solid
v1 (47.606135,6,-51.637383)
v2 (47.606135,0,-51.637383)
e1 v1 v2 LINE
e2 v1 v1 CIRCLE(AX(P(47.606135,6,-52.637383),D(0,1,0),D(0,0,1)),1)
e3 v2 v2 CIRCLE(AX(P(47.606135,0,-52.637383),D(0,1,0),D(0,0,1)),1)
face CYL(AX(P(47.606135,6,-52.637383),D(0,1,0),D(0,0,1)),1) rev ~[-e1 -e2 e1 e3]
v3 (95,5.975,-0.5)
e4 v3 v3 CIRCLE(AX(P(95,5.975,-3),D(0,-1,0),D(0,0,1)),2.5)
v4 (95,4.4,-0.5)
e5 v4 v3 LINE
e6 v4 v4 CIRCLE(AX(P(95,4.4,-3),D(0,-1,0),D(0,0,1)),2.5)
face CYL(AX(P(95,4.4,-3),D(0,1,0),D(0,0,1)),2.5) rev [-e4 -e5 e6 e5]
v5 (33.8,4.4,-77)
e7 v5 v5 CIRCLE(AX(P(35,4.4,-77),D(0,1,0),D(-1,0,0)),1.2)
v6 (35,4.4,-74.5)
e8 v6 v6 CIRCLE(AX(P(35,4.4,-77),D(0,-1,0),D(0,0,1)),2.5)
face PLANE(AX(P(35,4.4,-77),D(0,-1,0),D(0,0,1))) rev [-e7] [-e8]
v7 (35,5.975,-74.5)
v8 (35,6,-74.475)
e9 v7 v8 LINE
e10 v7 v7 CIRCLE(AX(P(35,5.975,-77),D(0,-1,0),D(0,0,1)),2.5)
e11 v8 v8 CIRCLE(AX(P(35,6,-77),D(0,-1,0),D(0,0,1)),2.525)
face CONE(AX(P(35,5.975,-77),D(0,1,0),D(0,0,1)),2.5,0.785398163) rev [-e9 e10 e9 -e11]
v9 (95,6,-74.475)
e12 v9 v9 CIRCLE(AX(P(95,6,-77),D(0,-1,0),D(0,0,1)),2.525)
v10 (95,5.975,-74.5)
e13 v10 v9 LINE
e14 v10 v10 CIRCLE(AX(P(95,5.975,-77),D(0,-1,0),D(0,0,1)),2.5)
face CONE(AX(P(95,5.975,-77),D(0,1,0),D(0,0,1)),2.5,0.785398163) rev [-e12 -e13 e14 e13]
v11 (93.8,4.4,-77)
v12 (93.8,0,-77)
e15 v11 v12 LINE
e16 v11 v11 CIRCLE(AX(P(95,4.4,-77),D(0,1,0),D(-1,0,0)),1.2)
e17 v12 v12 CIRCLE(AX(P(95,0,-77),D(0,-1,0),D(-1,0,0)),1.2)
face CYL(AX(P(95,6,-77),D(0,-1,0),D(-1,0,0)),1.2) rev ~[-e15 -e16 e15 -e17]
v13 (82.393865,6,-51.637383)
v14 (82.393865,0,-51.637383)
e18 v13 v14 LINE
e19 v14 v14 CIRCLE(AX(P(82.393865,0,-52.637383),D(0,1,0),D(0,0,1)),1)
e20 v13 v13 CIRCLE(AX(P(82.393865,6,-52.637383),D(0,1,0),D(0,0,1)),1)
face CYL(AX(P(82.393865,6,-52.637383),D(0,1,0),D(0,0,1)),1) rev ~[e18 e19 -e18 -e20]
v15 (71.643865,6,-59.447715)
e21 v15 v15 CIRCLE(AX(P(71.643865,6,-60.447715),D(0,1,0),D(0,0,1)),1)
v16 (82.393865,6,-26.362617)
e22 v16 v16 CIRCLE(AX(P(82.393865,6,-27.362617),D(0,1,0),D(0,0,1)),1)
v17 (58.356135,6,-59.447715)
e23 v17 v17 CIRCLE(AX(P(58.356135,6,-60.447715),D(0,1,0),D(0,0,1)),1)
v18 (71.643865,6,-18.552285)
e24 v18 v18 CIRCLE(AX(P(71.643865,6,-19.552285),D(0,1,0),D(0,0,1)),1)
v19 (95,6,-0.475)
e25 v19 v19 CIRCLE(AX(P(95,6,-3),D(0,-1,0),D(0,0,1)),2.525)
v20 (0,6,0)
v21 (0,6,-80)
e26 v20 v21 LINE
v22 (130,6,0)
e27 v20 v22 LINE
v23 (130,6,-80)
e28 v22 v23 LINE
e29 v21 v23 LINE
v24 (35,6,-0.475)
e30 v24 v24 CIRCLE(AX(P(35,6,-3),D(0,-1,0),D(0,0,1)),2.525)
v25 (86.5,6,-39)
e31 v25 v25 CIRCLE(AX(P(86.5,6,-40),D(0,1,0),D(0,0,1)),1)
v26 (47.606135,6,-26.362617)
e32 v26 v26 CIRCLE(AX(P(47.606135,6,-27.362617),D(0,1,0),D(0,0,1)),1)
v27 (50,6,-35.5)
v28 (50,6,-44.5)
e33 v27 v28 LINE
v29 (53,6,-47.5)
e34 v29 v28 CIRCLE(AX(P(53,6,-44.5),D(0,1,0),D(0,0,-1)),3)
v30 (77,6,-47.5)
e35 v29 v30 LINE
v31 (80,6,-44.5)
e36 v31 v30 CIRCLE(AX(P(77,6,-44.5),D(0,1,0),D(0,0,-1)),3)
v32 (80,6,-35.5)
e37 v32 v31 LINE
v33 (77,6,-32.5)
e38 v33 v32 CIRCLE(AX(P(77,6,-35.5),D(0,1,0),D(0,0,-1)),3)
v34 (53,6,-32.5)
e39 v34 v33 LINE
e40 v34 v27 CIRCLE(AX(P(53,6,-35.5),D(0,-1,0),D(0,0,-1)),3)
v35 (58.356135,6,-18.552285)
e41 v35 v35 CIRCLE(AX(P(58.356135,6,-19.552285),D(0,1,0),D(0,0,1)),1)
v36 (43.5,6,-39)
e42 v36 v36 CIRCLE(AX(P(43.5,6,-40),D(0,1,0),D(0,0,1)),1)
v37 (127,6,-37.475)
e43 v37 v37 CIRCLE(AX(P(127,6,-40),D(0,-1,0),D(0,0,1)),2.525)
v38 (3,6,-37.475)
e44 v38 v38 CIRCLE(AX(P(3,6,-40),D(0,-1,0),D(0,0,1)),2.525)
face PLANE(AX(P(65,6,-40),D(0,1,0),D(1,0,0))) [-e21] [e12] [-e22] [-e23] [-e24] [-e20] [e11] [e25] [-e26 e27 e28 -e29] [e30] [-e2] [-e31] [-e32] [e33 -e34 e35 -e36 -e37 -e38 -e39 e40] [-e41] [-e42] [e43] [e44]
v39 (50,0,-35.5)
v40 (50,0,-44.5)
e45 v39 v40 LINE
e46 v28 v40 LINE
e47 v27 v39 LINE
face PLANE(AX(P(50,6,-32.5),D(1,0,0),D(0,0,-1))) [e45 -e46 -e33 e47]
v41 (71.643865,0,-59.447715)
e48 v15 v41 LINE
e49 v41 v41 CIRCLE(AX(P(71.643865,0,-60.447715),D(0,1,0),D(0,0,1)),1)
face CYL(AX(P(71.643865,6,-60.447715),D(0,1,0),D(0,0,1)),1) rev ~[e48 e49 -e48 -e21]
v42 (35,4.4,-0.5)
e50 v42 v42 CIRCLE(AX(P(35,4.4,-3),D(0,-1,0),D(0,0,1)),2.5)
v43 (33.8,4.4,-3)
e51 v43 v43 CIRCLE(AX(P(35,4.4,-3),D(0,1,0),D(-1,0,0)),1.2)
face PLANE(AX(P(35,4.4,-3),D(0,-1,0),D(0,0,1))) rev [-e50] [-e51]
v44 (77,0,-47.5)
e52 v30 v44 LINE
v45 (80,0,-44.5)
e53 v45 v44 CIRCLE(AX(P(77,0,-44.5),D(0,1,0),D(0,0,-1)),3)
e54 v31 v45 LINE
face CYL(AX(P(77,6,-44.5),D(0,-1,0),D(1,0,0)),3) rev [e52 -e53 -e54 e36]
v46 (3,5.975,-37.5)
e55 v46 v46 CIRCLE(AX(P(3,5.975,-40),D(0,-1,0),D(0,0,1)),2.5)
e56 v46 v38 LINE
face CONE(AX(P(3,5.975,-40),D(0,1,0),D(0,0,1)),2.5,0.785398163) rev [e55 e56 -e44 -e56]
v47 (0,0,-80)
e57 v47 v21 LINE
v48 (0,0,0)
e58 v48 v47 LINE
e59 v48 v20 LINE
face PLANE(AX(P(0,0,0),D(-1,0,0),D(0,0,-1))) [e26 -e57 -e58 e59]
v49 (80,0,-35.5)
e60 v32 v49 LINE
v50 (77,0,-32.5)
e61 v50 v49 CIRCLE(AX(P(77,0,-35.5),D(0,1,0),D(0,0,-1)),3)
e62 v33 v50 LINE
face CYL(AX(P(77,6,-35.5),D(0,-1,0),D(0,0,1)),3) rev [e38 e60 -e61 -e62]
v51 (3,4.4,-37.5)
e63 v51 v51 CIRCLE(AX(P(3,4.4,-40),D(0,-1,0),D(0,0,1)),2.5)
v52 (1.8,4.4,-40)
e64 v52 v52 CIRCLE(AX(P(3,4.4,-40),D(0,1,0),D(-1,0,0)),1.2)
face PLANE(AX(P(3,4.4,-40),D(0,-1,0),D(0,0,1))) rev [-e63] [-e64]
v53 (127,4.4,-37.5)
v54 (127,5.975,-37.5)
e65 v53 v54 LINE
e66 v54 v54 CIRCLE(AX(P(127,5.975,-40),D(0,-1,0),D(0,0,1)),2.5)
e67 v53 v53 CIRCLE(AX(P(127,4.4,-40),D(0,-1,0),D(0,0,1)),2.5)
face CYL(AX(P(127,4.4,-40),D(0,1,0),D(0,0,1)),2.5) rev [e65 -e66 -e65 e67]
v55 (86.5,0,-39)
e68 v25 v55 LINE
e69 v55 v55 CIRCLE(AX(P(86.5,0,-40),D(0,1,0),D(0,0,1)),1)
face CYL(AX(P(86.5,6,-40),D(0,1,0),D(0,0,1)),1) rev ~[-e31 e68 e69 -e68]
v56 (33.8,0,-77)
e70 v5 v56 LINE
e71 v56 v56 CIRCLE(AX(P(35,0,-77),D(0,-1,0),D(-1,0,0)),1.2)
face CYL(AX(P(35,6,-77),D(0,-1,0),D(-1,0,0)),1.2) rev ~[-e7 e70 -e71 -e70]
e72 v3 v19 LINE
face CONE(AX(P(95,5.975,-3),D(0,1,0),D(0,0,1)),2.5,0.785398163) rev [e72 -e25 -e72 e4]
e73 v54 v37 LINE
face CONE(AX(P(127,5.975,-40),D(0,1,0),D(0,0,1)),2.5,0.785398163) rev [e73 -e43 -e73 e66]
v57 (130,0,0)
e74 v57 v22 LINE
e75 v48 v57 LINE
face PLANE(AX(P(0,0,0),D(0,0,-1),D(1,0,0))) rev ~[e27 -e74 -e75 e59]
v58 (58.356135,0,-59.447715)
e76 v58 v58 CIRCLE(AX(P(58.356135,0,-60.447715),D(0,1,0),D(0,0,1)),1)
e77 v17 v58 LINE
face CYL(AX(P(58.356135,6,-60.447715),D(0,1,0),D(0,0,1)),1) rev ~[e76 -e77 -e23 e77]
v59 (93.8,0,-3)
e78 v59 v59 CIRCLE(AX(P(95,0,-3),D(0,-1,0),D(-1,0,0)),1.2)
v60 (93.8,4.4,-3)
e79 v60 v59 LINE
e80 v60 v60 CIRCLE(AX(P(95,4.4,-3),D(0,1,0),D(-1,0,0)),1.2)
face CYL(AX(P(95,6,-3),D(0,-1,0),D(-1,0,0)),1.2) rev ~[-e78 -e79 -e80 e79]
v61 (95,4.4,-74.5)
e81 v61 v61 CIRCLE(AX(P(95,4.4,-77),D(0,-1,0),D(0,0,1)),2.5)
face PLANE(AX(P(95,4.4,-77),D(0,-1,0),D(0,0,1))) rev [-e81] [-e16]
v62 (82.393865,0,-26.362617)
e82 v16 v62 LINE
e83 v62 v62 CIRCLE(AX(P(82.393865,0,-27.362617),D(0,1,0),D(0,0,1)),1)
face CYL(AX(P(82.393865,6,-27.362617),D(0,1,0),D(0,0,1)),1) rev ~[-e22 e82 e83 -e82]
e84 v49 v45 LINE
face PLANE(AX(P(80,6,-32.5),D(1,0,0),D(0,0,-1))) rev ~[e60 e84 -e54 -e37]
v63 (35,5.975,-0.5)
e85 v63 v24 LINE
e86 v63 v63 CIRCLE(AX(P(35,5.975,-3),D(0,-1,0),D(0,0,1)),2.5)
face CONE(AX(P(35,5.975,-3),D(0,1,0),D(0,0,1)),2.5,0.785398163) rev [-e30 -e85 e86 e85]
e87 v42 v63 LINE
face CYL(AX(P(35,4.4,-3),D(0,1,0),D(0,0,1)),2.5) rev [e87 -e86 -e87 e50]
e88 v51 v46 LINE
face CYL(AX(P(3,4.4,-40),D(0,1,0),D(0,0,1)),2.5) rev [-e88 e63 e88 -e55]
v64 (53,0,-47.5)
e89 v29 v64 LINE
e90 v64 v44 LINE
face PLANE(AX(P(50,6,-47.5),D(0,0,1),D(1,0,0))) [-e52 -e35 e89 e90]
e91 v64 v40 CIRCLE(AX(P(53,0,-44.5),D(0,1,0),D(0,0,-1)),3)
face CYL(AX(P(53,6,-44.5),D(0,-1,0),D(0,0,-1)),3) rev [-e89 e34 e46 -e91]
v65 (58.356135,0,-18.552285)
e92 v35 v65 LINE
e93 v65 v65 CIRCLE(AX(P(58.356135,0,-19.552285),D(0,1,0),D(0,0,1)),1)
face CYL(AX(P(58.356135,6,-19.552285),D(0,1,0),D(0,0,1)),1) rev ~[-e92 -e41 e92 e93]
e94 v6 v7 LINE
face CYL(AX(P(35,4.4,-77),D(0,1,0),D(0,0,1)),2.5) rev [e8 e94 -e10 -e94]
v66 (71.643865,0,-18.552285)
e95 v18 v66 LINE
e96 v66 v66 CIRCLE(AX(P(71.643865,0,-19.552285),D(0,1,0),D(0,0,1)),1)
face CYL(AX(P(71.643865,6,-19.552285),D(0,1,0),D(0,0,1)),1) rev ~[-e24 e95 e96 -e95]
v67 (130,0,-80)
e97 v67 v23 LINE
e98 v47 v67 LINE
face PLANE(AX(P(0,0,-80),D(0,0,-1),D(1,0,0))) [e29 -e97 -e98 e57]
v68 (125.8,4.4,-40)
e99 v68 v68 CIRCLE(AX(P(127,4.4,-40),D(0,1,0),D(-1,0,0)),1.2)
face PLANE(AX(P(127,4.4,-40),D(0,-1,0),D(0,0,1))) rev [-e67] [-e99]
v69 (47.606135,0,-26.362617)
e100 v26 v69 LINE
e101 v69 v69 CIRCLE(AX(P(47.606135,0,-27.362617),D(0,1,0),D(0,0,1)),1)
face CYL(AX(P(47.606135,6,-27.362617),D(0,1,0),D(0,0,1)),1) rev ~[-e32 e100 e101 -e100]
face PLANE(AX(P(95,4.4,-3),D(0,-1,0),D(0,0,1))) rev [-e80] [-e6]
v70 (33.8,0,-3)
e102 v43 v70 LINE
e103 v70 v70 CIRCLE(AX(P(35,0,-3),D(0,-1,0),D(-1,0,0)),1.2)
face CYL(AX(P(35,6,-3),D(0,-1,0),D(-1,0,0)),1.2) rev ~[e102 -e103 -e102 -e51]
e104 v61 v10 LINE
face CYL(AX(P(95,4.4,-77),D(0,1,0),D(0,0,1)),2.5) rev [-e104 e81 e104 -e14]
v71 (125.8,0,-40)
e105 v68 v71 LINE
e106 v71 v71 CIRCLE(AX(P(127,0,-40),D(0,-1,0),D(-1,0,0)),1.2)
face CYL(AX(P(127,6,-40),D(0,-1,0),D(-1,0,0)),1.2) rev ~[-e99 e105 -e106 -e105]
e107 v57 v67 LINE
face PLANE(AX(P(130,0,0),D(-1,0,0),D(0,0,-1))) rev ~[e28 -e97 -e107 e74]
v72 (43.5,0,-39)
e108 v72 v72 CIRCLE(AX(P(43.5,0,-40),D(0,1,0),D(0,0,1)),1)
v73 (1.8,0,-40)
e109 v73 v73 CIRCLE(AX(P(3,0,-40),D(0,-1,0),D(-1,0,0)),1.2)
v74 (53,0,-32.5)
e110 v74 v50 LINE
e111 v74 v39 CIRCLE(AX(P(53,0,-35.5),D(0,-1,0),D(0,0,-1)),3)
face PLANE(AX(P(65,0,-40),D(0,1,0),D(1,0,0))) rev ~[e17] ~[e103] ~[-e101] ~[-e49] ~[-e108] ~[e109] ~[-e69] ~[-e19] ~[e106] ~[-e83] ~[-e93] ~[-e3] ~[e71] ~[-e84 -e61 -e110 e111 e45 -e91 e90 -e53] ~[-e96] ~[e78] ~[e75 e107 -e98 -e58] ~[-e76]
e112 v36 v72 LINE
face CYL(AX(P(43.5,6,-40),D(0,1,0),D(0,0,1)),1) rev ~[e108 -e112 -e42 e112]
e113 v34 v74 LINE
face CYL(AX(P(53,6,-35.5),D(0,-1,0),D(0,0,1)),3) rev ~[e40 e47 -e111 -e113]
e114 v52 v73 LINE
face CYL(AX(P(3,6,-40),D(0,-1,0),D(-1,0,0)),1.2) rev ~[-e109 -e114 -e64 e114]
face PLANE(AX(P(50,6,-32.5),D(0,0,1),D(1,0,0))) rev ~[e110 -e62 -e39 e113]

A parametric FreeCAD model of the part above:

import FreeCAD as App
import Part
import Sketcher

V = App.Vector
Q = App.Units.Quantity


def edges_at(feature, points):
    """Names of the edges that pass closest to the given points."""
    edges = feature.Shape.Edges
    near = lambda p: min(range(len(edges)), key=lambda i: edges[i].distToShape(Part.Vertex(*p))[0])
    return sorted({f"Edge{near(p) + 1}" for p in points})


def add_polygon(sketch, points):
    """Adds a closed chain of lines whose ends are joined by coincident constraints."""
    first, n = sketch.GeometryCount, len(points)
    for a, b in zip(points, points[1:] + points[:1]):
        sketch.addGeometry(Part.LineSegment(App.Vector(*a, 0), App.Vector(*b, 0)), False)
    for i in range(n):
        sketch.addConstraint(Sketcher.Constraint("Coincident", first + i, 2, first + (i + 1) % n, 1))

doc = App.newDocument("Part")
body = doc.addObject("PartDesign::Body", "Body")

sketch1 = body.newObject("Sketcher::SketchObject", "Sketch")
sketch1.AttachmentSupport = (doc.getObject("XZ_Plane"), [""])
sketch1.MapMode = "FlatFace"
add_polygon(sketch1, [(0, -80), (0, 0), (130, 0), (130, -80)])
sketch1.addConstraint(Sketcher.Constraint("Vertical", 0))
sketch1.addConstraint(Sketcher.Constraint("Horizontal", 1))
sketch1.addConstraint(Sketcher.Constraint("Vertical", 2))
sketch1.addConstraint(Sketcher.Constraint("Horizontal", 3))
sketch1.addConstraint(Sketcher.Constraint("Coincident", 0, 2, -1, 1))
sketch1.addConstraint(Sketcher.Constraint("DistanceX", 1, 1, 1, 2, 130.0))
sketch1.addConstraint(Sketcher.Constraint("DistanceY", 0, 1, 0, 2, 80.0))
pad1 = body.newObject("PartDesign::Pad", "Pad")
pad1.Profile = sketch1
pad1.Length = 6
pad1.Reversed = True

sketch2 = body.newObject("Sketcher::SketchObject", "Sketch001")
sketch2.AttachmentSupport = (doc.getObject("XZ_Plane"), [""])
sketch2.MapMode = "FlatFace"
sketch2.AttachmentOffset = App.Placement(V(0, 0, -6), App.Rotation())
sketch2.addGeometry(Part.Circle(V(35, -77, 0), V(0, 0, 1), 1.2), False)
sketch2.addGeometry(Part.Circle(V(95, -77, 0), V(0, 0, 1), 1.2), False)
sketch2.addGeometry(Part.Circle(V(127, -40, 0), V(0, 0, 1), 1.2), False)
sketch2.addGeometry(Part.Circle(V(95, -3, 0), V(0, 0, 1), 1.2), False)
sketch2.addGeometry(Part.Circle(V(35, -3, 0), V(0, 0, 1), 1.2), False)
sketch2.addGeometry(Part.Circle(V(3, -40, 0), V(0, 0, 1), 1.2), False)
sketch2.addGeometry(Part.Circle(V(133.1, -32.8, 0), V(0, 0, 1), 1.2), False)
sketch2.addConstraint(Sketcher.Constraint("Equal", 0, 1))
sketch2.addConstraint(Sketcher.Constraint("Equal", 1, 2))
sketch2.addConstraint(Sketcher.Constraint("Equal", 2, 3))
sketch2.addConstraint(Sketcher.Constraint("Equal", 3, 4))
sketch2.addConstraint(Sketcher.Constraint("Equal", 4, 5))
sketch2.addConstraint(Sketcher.Constraint("Equal", 5, 6))
sketch2.addConstraint(Sketcher.Constraint("Horizontal", 0, 3, 1, 3))
sketch2.addConstraint(Sketcher.Constraint("Horizontal", 3, 3, 4, 3))
sketch2.addConstraint(Sketcher.Constraint("Horizontal", 2, 3, 5, 3))
sketch2.addConstraint(Sketcher.Constraint("Vertical", 1, 3, 3, 3))
sketch2.addConstraint(Sketcher.Constraint("Vertical", 0, 3, 4, 3))
sketch2.addConstraint(Sketcher.Constraint("Diameter", 0, 2.4))
sketch2.addConstraint(Sketcher.Constraint("DistanceX", -1, 1, 0, 3, 35.0))
sketch2.addConstraint(Sketcher.Constraint("DistanceY", 0, 3, -1, 1, 77.0))
sketch2.addConstraint(Sketcher.Constraint("DistanceX", -1, 1, 1, 3, 95.0))
sketch2.addConstraint(Sketcher.Constraint("DistanceX", -1, 1, 2, 3, 127.0))
sketch2.addConstraint(Sketcher.Constraint("DistanceY", 2, 3, -1, 1, 40.0))
sketch2.addConstraint(Sketcher.Constraint("DistanceY", 3, 3, -1, 1, 3.0))
sketch2.addConstraint(Sketcher.Constraint("DistanceX", -1, 1, 5, 3, 3.0))
sketch2.addConstraint(Sketcher.Constraint("DistanceX", -1, 1, 6, 3, 133.088689))
sketch2.addConstraint(Sketcher.Constraint("DistanceY", 6, 3, -1, 1, 32.80342))
doc.recompute()
hole = body.newObject("PartDesign::Hole", "Hole")
hole.Profile = sketch2
hole.ThreadType = "None"
hole.Diameter = 2.4
hole.DepthType = "Dimension"
hole.Depth = 10
hole.DrillPoint = "Angled"
hole.DrillPointAngle = 118
hole.HoleCutType = "Countersink"
hole.HoleCutDiameter = 2.45
hole.HoleCutCountersinkAngle = 90
hole.Reversed = True

sketch3 = body.newObject("Sketcher::SketchObject", "Sketch002")
sketch3.AttachmentSupport = (doc.getObject("YZ_Plane"), [""])
sketch3.MapMode = "FlatFace"
sketch3.AttachmentOffset = App.Placement(V(0, 0, 95), App.Rotation())
add_polygon(sketch3, [(3.279, -3), (6, -3), (6, -0.475), (5.975, -0.5), (4.4, -0.5), (4.4, -1.8), (4, -1.8)])
sketch3.addGeometry(Part.LineSegment(V(6, -3, 0), V(3.279, -3, 0)), True)
sketch3.addConstraint(Sketcher.Constraint("Horizontal", 0))
sketch3.addConstraint(Sketcher.Constraint("Vertical", 1))
sketch3.addConstraint(Sketcher.Constraint("Horizontal", 3))
sketch3.addConstraint(Sketcher.Constraint("Vertical", 4))
sketch3.addConstraint(Sketcher.Constraint("Horizontal", 5))
sketch3.addConstraint(Sketcher.Constraint("Horizontal", 7))
sketch3.addConstraint(Sketcher.Constraint("Coincident", 7, 1, 0, 2))
sketch3.addConstraint(Sketcher.Constraint("Equal", 0, 7))
sketch3.addConstraint(Sketcher.Constraint("Angle", 2, Q("-135 deg")))
sketch3.addConstraint(Sketcher.Constraint("Angle", 6, Q("-121 deg")))
sketch3.addConstraint(Sketcher.Constraint("DistanceX", 5, 2, 5, 1, 0.4))
sketch3.addConstraint(Sketcher.Constraint("DistanceY", 4, 2, 4, 1, 1.3))
sketch3.addConstraint(Sketcher.Constraint("DistanceX", -1, 1, 0, 2, 6.0))
sketch3.addConstraint(Sketcher.Constraint("DistanceY", 0, 2, -1, 1, 3.0))
sketch3.addConstraint(Sketcher.Constraint("DistanceX", -1, 1, 5, 2, 4.0))
sketch3.addConstraint(Sketcher.Constraint("DistanceY", 2, 2, -1, 1, 0.5))
sketch3.addConstraint(Sketcher.Constraint("DistanceX", 3, 2, 3, 1, 1.575))
groove = body.newObject("PartDesign::Groove", "Groove")
groove.Profile = sketch3
groove.ReferenceAxis = (sketch3, ["Axis0"])
groove.Angle = 360
doc.recompute()

datumline = body.newObject("PartDesign::Line", "DatumLine")
datumline.Placement = App.Placement(V(0, 0, 0), App.Rotation(V(0, 0, 1), V(0.654151933, 0, -0.756363172)))
linearpattern = body.newObject("PartDesign::LinearPattern", "LinearPattern")
linearpattern.Originals = [groove]
linearpattern.Direction = (datumline, [""])
linearpattern.Mode = "offset"
linearpattern.Offset = 48.918299
linearpattern.Occurrences = 2
body.Tip = linearpattern
doc.recompute()

linearpattern2 = body.newObject("PartDesign::LinearPattern", "LinearPattern001")
linearpattern2.Originals = [groove]
linearpattern2.Direction = (doc.getObject("Z_Axis"), [""])
linearpattern2.Mode = "offset"
linearpattern2.Offset = 74
linearpattern2.Occurrences = 2
linearpattern2.Reversed = True
body.Tip = linearpattern2
doc.recompute()

datumline2 = body.newObject("PartDesign::Line", "DatumLine001")
datumline2.Placement = App.Placement(V(0, 0, 0), App.Rotation(V(0, 0, 1), V(-0.629801958, 0, -0.776755749)))
linearpattern3 = body.newObject("PartDesign::LinearPattern", "LinearPattern002")
linearpattern3.Originals = [groove]
linearpattern3.Direction = (datumline2, [""])
linearpattern3.Mode = "offset"
linearpattern3.Offset = 95.268043
linearpattern3.Occurrences = 2
body.Tip = linearpattern3
doc.recompute()

datumline3 = body.newObject("PartDesign::Line", "DatumLine002")
datumline3.Placement = App.Placement(V(0, 0, 0), App.Rotation(V(0, 0, 1), V(-0.927779576, 0, -0.373128742)))
linearpattern4 = body.newObject("PartDesign::LinearPattern", "LinearPattern003")
linearpattern4.Originals = [groove]
linearpattern4.Direction = (datumline3, [""])
linearpattern4.Mode = "offset"
linearpattern4.Offset = 99.161484
linearpattern4.Occurrences = 2
body.Tip = linearpattern4
doc.recompute()

linearpattern5 = body.newObject("PartDesign::LinearPattern", "LinearPattern004")
linearpattern5.Originals = [groove]
linearpattern5.Direction = (doc.getObject("X_Axis"), [""])
linearpattern5.Mode = "offset"
linearpattern5.Offset = 60
linearpattern5.Occurrences = 2
linearpattern5.Reversed = True
body.Tip = linearpattern5

sketch4 = body.newObject("Sketcher::SketchObject", "Sketch003")
sketch4.AttachmentSupport = (doc.getObject("XZ_Plane"), [""])
sketch4.MapMode = "FlatFace"
sketch4.AttachmentOffset = App.Placement(V(0, 0, -6), App.Rotation())
sketch4.addGeometry(Part.Circle(V(47.6, -52.6, 0), V(0, 0, 1), 1), False)
sketch4.addGeometry(Part.Circle(V(58.4, -60.4, 0), V(0, 0, 1), 1), False)
sketch4.addGeometry(Part.Circle(V(71.6, -60.4, 0), V(0, 0, 1), 1), False)
sketch4.addGeometry(Part.Circle(V(82.4, -52.6, 0), V(0, 0, 1), 1), False)
sketch4.addGeometry(Part.Circle(V(86.5, -40, 0), V(0, 0, 1), 1), False)
sketch4.addGeometry(Part.Circle(V(82.4, -27.4, 0), V(0, 0, 1), 1), False)
sketch4.addGeometry(Part.Circle(V(71.6, -19.6, 0), V(0, 0, 1), 1), False)
sketch4.addGeometry(Part.Circle(V(58.4, -19.6, 0), V(0, 0, 1), 1), False)
sketch4.addGeometry(Part.Circle(V(47.6, -27.4, 0), V(0, 0, 1), 1), False)
sketch4.addGeometry(Part.Circle(V(43.5, -40, 0), V(0, 0, 1), 1), False)
add_polygon(sketch4, [(50, -47.5), (50, -32.5), (80, -32.5), (80, -47.5)])
sketch4.addConstraint(Sketcher.Constraint("Vertical", 10))
sketch4.addConstraint(Sketcher.Constraint("Horizontal", 11))
sketch4.addConstraint(Sketcher.Constraint("Vertical", 12))
sketch4.addConstraint(Sketcher.Constraint("Horizontal", 13))
sketch4.addConstraint(Sketcher.Constraint("Equal", 0, 1))
sketch4.addConstraint(Sketcher.Constraint("Equal", 1, 2))
sketch4.addConstraint(Sketcher.Constraint("Equal", 2, 3))
sketch4.addConstraint(Sketcher.Constraint("Equal", 3, 4))
sketch4.addConstraint(Sketcher.Constraint("Equal", 4, 5))
sketch4.addConstraint(Sketcher.Constraint("Equal", 5, 6))
sketch4.addConstraint(Sketcher.Constraint("Equal", 6, 7))
sketch4.addConstraint(Sketcher.Constraint("Equal", 7, 8))
sketch4.addConstraint(Sketcher.Constraint("Equal", 8, 9))
sketch4.addConstraint(Sketcher.Constraint("Horizontal", 1, 3, 2, 3))
sketch4.addConstraint(Sketcher.Constraint("Horizontal", 0, 3, 3, 3))
sketch4.addConstraint(Sketcher.Constraint("Horizontal", 6, 3, 7, 3))
sketch4.addConstraint(Sketcher.Constraint("Horizontal", 5, 3, 8, 3))
sketch4.addConstraint(Sketcher.Constraint("Horizontal", 4, 3, 9, 3))
sketch4.addConstraint(Sketcher.Constraint("Vertical", 3, 3, 5, 3))
sketch4.addConstraint(Sketcher.Constraint("Vertical", 2, 3, 6, 3))
sketch4.addConstraint(Sketcher.Constraint("Vertical", 1, 3, 7, 3))
sketch4.addConstraint(Sketcher.Constraint("Vertical", 0, 3, 8, 3))
sketch4.addConstraint(Sketcher.Constraint("Diameter", 0, 2.0))
sketch4.addConstraint(Sketcher.Constraint("DistanceX", 11, 1, 11, 2, 30.0))
sketch4.addConstraint(Sketcher.Constraint("DistanceY", 10, 1, 10, 2, 15.0))
sketch4.addConstraint(Sketcher.Constraint("DistanceY", 4, 3, -1, 1, 40.0))
sketch4.addConstraint(Sketcher.Constraint("DistanceX", -1, 1, 10, 2, 50.0))
sketch4.addConstraint(Sketcher.Constraint("DistanceX", -1, 1, 4, 3, 86.5))
sketch4.addConstraint(Sketcher.Constraint("DistanceX", -1, 1, 9, 3, 43.5))
sketch4.addConstraint(Sketcher.Constraint("DistanceY", 10, 2, -1, 1, 32.5))
sketch4.addConstraint(Sketcher.Constraint("DistanceX", 0, 3, 1, 3, 10.75))
sketch4.addConstraint(Sketcher.Constraint("DistanceX", 2, 3, 3, 3, 10.75))
sketch4.addConstraint(Sketcher.Constraint("DistanceY", 2, 3, 5, 3, 33.085098))
sketch4.addConstraint(Sketcher.Constraint("DistanceY", 3, 3, 6, 3, 33.085098))
sketch4.addConstraint(Sketcher.Constraint("DistanceX", 1, 3, 2, 3, 13.287731))
sketch4.addConstraint(Sketcher.Constraint("DistanceY", 2, 3, 6, 3, 40.89543))
sketch4.addConstraint(Sketcher.Constraint("DistanceX", -1, 1, 0, 3, 47.606135))
sketch4.addConstraint(Sketcher.Constraint("DistanceY", 0, 3, -1, 1, 52.637383))
pocket1 = body.newObject("PartDesign::Pocket", "Pocket")
pocket1.Profile = sketch4
pocket1.Length = 6
pocket1.Reversed = True
doc.recompute()

fillet = body.newObject("PartDesign::Fillet", "Fillet")
fillet.Base = (pocket1, edges_at(pocket1, [
    (50, 3, -47.5),
    (50, 3, -32.5),
    (80, 3, -32.5),
    (80, 3, -47.5),
]))
fillet.Radius = 3

doc.recompute()
